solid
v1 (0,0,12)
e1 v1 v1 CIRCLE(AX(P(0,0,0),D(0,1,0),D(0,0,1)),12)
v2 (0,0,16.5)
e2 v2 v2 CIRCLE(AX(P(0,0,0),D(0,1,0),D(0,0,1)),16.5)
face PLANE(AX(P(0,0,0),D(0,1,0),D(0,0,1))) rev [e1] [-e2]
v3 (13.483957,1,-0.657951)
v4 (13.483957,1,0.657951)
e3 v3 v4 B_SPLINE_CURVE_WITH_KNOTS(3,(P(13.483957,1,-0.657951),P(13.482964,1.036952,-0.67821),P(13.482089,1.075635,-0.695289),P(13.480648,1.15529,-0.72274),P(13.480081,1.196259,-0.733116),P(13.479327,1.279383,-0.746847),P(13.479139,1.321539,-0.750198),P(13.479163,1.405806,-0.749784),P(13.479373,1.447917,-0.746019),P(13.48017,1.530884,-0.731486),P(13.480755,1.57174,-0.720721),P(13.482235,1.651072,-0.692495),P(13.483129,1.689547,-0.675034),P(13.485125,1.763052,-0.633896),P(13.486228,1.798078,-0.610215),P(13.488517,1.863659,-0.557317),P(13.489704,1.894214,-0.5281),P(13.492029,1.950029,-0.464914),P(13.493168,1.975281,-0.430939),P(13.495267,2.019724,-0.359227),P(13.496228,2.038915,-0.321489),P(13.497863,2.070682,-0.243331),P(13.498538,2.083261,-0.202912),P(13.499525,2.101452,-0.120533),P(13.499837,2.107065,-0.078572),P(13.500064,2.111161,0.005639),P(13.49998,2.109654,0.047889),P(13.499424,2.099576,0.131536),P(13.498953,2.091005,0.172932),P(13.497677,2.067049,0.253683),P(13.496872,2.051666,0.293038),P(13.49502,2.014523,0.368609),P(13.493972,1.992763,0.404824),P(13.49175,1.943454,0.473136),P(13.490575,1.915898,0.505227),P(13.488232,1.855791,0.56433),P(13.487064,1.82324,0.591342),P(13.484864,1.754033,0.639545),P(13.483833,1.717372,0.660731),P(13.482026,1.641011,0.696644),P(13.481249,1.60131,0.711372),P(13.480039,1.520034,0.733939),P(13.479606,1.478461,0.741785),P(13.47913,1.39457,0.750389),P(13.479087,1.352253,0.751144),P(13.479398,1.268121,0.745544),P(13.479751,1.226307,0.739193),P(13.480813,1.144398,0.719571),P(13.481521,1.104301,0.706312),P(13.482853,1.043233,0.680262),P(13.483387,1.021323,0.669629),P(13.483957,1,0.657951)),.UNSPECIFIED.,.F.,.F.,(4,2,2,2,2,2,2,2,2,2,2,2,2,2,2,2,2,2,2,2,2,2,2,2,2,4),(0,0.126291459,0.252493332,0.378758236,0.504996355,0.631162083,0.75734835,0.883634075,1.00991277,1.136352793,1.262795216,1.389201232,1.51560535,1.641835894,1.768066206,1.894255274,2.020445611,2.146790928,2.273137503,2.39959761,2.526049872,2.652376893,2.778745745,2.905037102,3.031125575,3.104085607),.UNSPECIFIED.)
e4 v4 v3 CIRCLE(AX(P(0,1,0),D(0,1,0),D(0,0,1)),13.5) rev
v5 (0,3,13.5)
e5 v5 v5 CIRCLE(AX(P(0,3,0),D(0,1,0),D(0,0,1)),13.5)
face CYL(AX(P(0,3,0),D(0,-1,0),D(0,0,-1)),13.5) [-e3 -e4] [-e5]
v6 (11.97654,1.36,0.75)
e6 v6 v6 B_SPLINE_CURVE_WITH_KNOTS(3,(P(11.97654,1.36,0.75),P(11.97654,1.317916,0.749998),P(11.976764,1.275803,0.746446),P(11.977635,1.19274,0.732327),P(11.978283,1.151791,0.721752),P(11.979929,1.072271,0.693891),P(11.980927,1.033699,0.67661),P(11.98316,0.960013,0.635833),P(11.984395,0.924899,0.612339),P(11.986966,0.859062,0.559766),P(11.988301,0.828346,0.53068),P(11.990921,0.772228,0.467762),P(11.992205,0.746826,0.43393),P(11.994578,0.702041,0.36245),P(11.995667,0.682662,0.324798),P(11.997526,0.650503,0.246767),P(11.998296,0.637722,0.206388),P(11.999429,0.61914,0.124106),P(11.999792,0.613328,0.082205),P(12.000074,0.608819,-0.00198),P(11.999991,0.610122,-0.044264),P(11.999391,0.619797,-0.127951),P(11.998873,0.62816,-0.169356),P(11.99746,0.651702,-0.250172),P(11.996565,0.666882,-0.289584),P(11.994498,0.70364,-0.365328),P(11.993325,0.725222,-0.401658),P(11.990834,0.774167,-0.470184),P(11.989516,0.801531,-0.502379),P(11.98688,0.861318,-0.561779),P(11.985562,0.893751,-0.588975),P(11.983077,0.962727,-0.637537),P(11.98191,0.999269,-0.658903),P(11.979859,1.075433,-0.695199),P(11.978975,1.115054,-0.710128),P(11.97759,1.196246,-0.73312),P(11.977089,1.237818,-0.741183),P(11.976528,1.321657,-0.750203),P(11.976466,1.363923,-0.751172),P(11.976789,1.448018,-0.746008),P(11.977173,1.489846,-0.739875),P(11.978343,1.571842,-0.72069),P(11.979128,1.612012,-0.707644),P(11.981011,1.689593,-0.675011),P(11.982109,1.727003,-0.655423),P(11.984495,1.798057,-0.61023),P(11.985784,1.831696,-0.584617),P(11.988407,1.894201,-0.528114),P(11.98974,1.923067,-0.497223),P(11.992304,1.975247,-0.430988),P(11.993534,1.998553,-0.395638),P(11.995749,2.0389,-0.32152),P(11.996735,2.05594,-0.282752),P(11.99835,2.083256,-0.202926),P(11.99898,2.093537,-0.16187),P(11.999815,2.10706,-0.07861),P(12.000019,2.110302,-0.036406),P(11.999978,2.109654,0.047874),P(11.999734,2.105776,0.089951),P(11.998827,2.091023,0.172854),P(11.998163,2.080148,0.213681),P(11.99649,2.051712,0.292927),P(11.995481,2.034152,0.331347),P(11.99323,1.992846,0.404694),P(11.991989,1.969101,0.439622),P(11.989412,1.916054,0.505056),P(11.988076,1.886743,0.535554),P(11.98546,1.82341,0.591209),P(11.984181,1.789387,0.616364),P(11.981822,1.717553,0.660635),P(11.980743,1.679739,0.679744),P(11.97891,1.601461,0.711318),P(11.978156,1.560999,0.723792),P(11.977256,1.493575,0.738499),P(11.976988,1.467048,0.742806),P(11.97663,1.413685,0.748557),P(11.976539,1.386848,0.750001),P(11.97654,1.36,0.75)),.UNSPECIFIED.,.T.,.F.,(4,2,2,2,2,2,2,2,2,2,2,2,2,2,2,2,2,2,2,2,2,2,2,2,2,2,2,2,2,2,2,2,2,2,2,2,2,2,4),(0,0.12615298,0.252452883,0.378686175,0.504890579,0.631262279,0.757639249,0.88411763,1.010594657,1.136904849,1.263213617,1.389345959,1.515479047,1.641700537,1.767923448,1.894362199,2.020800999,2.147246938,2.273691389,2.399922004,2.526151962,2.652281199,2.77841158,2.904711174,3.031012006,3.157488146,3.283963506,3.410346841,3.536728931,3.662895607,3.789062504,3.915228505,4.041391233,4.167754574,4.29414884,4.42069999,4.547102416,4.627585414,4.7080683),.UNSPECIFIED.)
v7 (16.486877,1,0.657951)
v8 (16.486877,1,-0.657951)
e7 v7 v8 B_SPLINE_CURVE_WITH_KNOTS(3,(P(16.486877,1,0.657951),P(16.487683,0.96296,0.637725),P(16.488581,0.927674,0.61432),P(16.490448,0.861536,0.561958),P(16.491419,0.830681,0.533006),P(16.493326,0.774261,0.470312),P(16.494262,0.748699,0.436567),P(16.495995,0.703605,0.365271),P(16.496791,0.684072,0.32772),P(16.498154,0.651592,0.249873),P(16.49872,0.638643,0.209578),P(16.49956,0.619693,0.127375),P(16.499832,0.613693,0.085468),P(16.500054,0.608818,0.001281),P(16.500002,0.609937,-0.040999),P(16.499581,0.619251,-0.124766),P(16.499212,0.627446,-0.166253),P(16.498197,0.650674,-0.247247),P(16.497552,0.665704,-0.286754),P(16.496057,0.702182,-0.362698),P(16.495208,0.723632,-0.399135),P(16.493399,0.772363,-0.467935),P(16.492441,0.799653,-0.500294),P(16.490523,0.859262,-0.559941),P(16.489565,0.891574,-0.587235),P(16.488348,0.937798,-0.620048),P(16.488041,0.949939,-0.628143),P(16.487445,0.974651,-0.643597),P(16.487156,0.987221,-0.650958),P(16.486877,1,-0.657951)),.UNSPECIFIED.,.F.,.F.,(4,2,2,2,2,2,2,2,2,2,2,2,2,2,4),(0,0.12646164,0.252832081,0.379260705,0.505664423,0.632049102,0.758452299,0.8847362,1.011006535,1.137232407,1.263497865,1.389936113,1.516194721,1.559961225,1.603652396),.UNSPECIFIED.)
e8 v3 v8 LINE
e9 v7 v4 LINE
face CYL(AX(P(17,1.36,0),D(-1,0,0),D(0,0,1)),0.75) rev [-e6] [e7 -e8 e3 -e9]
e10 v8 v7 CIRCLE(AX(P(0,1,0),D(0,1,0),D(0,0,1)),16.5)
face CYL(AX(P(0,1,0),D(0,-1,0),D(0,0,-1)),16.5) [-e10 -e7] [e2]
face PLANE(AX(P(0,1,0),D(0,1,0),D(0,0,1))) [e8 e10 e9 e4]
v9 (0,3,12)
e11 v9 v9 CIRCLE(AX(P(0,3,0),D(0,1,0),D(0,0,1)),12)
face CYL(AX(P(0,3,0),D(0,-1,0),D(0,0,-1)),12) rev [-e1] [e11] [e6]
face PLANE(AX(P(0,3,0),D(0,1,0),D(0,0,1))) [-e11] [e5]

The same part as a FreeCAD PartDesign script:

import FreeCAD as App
import Part
import Sketcher

doc = App.newDocument("Part")
body = doc.addObject("PartDesign::Body", "Body")

sketch1 = body.newObject("Sketcher::SketchObject", "Sketch")
sketch1.AttachmentSupport = (doc.getObject("XZ_Plane"), [""])
sketch1.MapMode = "FlatFace"
sketch1.addGeometry(Part.Circle(App.Vector(0, 0, 0), App.Vector(0, 0, 1), 16.5), False)
sketch1.addConstraint([
    Sketcher.Constraint("Coincident", 0, 3, -1, 1),
    Sketcher.Constraint("Diameter", 0, 33.0),
])
pad1 = body.newObject("PartDesign::Pad", "Pad")
pad1.Profile = sketch1
pad1.Length = 1
pad1.Reversed = True

sketch2 = body.newObject("Sketcher::SketchObject", "Sketch001")
sketch2.AttachmentSupport = (doc.getObject("XZ_Plane"), [""])
sketch2.MapMode = "FlatFace"
sketch2.addGeometry(Part.Circle(App.Vector(0, 0, 0), App.Vector(0, 0, 1), 13.5), False)
sketch2.addConstraint([
    Sketcher.Constraint("Coincident", 0, 3, -1, 1),
    Sketcher.Constraint("Diameter", 0, 27.0),
])
pad2 = body.newObject("PartDesign::Pad", "Pad001")
pad2.Profile = sketch2
pad2.Length = 3
pad2.Reversed = True

sketch3 = body.newObject("Sketcher::SketchObject", "Sketch002")
sketch3.AttachmentSupport = (doc.getObject("XZ_Plane"), [""])
sketch3.MapMode = "FlatFace"
sketch3.addGeometry(Part.Circle(App.Vector(0, 0, 0), App.Vector(0, 0, 1), 12), False)
sketch3.addConstraint([
    Sketcher.Constraint("Coincident", 0, 3, -1, 1),
    Sketcher.Constraint("Diameter", 0, 24.0),
])
pocket1 = body.newObject("PartDesign::Pocket", "Pocket")
pocket1.Profile = sketch3
pocket1.Length = 3

sketch4 = body.newObject("Sketcher::SketchObject", "Sketch003")
sketch4.AttachmentSupport = (doc.getObject("YZ_Plane"), [""])
sketch4.MapMode = "FlatFace"
sketch4.addGeometry(Part.Circle(App.Vector(1.36, 0, 0), App.Vector(0, 0, 1), 0.75), False)
sketch4.addConstraint([
    Sketcher.Constraint("PointOnObject", 0, 3, -1),
    Sketcher.Constraint("Diameter", 0, 1.5),
    Sketcher.Constraint("DistanceX", -1, 1, 0, 3, 1.36),
])
pocket2 = body.newObject("PartDesign::Pocket", "Pocket001")
pocket2.Profile = sketch4
pocket2.Length = 17
pocket2.Reversed = True

doc.recompute()
